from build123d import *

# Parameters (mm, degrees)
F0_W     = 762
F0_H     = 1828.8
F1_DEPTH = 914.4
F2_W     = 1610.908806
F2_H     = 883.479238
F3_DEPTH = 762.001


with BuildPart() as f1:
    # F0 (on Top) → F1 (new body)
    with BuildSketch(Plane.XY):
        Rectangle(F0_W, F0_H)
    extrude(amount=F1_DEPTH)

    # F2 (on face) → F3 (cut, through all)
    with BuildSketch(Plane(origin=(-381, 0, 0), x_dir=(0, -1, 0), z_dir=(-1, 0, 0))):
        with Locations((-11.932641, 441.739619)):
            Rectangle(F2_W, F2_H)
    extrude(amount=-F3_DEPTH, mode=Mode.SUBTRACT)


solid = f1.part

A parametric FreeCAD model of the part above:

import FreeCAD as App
import Part
import Sketcher
Q = App.Units.Quantity

doc = App.newDocument("Part")
params = doc.addObject("Spreadsheet::Sheet", "Params")
for row, (alias, value) in enumerate([
    ("sketch1_width", "30 in"),
    ("sketch1_height", "72 in"),
    ("pad1_length", "36 in"),
], start=1):
    params.set(f"A{row}", alias)
    params.set(f"B{row}", "=" + value)
    params.setAlias(f"B{row}", alias)

body = doc.addObject("PartDesign::Body", "Body")

# Sketch on XY plane
sketch1 = body.newObject("Sketcher::SketchObject", "Sketch")
sketch1.AttachmentSupport = (doc.getObject("XY_Plane"), [""])
sketch1.MapMode = "FlatFace"
sketch1.addGeometry(Part.LineSegment(App.Vector(-381, 914.4, 0), App.Vector(-381, -914.4, 0)), False)
sketch1.addGeometry(Part.LineSegment(App.Vector(-381, -914.4, 0), App.Vector(381, -914.4, 0)), False)
sketch1.addGeometry(Part.LineSegment(App.Vector(381, -914.4, 0), App.Vector(381, 914.4, 0)), False)
sketch1.addGeometry(Part.LineSegment(App.Vector(381, 914.4, 0), App.Vector(-381, 914.4, 0)), False)
sketch1.addConstraint(Sketcher.Constraint("Coincident", 0, 2, 1, 1))
sketch1.addConstraint(Sketcher.Constraint("Coincident", 1, 2, 2, 1))
sketch1.addConstraint(Sketcher.Constraint("Coincident", 2, 2, 3, 1))
sketch1.addConstraint(Sketcher.Constraint("Coincident", 3, 2, 0, 1))
sketch1.addConstraint(Sketcher.Constraint("Vertical", 0))
sketch1.addConstraint(Sketcher.Constraint("Horizontal", 1))
sketch1.addConstraint(Sketcher.Constraint("Vertical", 2))
sketch1.addConstraint(Sketcher.Constraint("Horizontal", 3))
sketch1.addConstraint(Sketcher.Constraint("Symmetric", 0, 2, 2, 2, -1, 1))
sketch1.addConstraint(Sketcher.Constraint("DistanceX", 1, 1, 1, 2, Q("30 in")))
sketch1.addConstraint(Sketcher.Constraint("DistanceY", 0, 2, 0, 1, Q("72 in")))
sketch1.setExpression("Constraints[9]", "Params.sketch1_width")
sketch1.setExpression("Constraints[10]", "Params.sketch1_height")
pad1 = body.newObject("PartDesign::Pad", "Pad")
pad1.Profile = sketch1
pad1.setExpression("Length", "Params.pad1_length")

# Sketch on YZ plane
sketch2 = body.newObject("Sketcher::SketchObject", "Sketch001")
sketch2.AttachmentSupport = (doc.getObject("YZ_Plane"), [""])
sketch2.MapMode = "FlatFace"
sketch2.AttachmentOffset = App.Placement(App.Vector(0, 0, -15 * 25.4), App.Rotation())
sketch2.addGeometry(Part.LineSegment(App.Vector(817.387044, 883.479238, 0), App.Vector(817.387044, 0, 0)), False)
sketch2.addGeometry(Part.LineSegment(App.Vector(817.387044, 0, 0), App.Vector(-793.521762, 0, 0)), False)
sketch2.addGeometry(Part.LineSegment(App.Vector(-793.521762, 0, 0), App.Vector(-793.521762, 883.479238, 0)), False)
sketch2.addGeometry(Part.LineSegment(App.Vector(-793.521762, 883.479238, 0), App.Vector(817.387044, 883.479238, 0)), False)
sketch2.addConstraint(Sketcher.Constraint("Coincident", 0, 2, 1, 1))
sketch2.addConstraint(Sketcher.Constraint("Coincident", 1, 2, 2, 1))
sketch2.addConstraint(Sketcher.Constraint("Coincident", 2, 2, 3, 1))
sketch2.addConstraint(Sketcher.Constraint("Coincident", 3, 2, 0, 1))
sketch2.addConstraint(Sketcher.Constraint("Vertical", 0))
sketch2.addConstraint(Sketcher.Constraint("Horizontal", 1))
sketch2.addConstraint(Sketcher.Constraint("Vertical", 2))
sketch2.addConstraint(Sketcher.Constraint("Horizontal", 3))
sketch2.addConstraint(Sketcher.Constraint("PointOnObject", 0, 2, -1))
sketch2.addConstraint(Sketcher.Constraint("DistanceY", 0, 2, 0, 1, Q("883.479238 mm")))
sketch2.addConstraint(Sketcher.Constraint("DistanceX", 1, 2, 1, 1, Q("1610.908806 mm")))
sketch2.addConstraint(Sketcher.Constraint("DistanceX", 1, 2, -1, 1, Q("793.521762 mm")))
pocket1 = body.newObject("PartDesign::Pocket", "Pocket")
pocket1.Profile = sketch2
pocket1.Type = "ThroughAll"
pocket1.Reversed = True

doc.recompute()
